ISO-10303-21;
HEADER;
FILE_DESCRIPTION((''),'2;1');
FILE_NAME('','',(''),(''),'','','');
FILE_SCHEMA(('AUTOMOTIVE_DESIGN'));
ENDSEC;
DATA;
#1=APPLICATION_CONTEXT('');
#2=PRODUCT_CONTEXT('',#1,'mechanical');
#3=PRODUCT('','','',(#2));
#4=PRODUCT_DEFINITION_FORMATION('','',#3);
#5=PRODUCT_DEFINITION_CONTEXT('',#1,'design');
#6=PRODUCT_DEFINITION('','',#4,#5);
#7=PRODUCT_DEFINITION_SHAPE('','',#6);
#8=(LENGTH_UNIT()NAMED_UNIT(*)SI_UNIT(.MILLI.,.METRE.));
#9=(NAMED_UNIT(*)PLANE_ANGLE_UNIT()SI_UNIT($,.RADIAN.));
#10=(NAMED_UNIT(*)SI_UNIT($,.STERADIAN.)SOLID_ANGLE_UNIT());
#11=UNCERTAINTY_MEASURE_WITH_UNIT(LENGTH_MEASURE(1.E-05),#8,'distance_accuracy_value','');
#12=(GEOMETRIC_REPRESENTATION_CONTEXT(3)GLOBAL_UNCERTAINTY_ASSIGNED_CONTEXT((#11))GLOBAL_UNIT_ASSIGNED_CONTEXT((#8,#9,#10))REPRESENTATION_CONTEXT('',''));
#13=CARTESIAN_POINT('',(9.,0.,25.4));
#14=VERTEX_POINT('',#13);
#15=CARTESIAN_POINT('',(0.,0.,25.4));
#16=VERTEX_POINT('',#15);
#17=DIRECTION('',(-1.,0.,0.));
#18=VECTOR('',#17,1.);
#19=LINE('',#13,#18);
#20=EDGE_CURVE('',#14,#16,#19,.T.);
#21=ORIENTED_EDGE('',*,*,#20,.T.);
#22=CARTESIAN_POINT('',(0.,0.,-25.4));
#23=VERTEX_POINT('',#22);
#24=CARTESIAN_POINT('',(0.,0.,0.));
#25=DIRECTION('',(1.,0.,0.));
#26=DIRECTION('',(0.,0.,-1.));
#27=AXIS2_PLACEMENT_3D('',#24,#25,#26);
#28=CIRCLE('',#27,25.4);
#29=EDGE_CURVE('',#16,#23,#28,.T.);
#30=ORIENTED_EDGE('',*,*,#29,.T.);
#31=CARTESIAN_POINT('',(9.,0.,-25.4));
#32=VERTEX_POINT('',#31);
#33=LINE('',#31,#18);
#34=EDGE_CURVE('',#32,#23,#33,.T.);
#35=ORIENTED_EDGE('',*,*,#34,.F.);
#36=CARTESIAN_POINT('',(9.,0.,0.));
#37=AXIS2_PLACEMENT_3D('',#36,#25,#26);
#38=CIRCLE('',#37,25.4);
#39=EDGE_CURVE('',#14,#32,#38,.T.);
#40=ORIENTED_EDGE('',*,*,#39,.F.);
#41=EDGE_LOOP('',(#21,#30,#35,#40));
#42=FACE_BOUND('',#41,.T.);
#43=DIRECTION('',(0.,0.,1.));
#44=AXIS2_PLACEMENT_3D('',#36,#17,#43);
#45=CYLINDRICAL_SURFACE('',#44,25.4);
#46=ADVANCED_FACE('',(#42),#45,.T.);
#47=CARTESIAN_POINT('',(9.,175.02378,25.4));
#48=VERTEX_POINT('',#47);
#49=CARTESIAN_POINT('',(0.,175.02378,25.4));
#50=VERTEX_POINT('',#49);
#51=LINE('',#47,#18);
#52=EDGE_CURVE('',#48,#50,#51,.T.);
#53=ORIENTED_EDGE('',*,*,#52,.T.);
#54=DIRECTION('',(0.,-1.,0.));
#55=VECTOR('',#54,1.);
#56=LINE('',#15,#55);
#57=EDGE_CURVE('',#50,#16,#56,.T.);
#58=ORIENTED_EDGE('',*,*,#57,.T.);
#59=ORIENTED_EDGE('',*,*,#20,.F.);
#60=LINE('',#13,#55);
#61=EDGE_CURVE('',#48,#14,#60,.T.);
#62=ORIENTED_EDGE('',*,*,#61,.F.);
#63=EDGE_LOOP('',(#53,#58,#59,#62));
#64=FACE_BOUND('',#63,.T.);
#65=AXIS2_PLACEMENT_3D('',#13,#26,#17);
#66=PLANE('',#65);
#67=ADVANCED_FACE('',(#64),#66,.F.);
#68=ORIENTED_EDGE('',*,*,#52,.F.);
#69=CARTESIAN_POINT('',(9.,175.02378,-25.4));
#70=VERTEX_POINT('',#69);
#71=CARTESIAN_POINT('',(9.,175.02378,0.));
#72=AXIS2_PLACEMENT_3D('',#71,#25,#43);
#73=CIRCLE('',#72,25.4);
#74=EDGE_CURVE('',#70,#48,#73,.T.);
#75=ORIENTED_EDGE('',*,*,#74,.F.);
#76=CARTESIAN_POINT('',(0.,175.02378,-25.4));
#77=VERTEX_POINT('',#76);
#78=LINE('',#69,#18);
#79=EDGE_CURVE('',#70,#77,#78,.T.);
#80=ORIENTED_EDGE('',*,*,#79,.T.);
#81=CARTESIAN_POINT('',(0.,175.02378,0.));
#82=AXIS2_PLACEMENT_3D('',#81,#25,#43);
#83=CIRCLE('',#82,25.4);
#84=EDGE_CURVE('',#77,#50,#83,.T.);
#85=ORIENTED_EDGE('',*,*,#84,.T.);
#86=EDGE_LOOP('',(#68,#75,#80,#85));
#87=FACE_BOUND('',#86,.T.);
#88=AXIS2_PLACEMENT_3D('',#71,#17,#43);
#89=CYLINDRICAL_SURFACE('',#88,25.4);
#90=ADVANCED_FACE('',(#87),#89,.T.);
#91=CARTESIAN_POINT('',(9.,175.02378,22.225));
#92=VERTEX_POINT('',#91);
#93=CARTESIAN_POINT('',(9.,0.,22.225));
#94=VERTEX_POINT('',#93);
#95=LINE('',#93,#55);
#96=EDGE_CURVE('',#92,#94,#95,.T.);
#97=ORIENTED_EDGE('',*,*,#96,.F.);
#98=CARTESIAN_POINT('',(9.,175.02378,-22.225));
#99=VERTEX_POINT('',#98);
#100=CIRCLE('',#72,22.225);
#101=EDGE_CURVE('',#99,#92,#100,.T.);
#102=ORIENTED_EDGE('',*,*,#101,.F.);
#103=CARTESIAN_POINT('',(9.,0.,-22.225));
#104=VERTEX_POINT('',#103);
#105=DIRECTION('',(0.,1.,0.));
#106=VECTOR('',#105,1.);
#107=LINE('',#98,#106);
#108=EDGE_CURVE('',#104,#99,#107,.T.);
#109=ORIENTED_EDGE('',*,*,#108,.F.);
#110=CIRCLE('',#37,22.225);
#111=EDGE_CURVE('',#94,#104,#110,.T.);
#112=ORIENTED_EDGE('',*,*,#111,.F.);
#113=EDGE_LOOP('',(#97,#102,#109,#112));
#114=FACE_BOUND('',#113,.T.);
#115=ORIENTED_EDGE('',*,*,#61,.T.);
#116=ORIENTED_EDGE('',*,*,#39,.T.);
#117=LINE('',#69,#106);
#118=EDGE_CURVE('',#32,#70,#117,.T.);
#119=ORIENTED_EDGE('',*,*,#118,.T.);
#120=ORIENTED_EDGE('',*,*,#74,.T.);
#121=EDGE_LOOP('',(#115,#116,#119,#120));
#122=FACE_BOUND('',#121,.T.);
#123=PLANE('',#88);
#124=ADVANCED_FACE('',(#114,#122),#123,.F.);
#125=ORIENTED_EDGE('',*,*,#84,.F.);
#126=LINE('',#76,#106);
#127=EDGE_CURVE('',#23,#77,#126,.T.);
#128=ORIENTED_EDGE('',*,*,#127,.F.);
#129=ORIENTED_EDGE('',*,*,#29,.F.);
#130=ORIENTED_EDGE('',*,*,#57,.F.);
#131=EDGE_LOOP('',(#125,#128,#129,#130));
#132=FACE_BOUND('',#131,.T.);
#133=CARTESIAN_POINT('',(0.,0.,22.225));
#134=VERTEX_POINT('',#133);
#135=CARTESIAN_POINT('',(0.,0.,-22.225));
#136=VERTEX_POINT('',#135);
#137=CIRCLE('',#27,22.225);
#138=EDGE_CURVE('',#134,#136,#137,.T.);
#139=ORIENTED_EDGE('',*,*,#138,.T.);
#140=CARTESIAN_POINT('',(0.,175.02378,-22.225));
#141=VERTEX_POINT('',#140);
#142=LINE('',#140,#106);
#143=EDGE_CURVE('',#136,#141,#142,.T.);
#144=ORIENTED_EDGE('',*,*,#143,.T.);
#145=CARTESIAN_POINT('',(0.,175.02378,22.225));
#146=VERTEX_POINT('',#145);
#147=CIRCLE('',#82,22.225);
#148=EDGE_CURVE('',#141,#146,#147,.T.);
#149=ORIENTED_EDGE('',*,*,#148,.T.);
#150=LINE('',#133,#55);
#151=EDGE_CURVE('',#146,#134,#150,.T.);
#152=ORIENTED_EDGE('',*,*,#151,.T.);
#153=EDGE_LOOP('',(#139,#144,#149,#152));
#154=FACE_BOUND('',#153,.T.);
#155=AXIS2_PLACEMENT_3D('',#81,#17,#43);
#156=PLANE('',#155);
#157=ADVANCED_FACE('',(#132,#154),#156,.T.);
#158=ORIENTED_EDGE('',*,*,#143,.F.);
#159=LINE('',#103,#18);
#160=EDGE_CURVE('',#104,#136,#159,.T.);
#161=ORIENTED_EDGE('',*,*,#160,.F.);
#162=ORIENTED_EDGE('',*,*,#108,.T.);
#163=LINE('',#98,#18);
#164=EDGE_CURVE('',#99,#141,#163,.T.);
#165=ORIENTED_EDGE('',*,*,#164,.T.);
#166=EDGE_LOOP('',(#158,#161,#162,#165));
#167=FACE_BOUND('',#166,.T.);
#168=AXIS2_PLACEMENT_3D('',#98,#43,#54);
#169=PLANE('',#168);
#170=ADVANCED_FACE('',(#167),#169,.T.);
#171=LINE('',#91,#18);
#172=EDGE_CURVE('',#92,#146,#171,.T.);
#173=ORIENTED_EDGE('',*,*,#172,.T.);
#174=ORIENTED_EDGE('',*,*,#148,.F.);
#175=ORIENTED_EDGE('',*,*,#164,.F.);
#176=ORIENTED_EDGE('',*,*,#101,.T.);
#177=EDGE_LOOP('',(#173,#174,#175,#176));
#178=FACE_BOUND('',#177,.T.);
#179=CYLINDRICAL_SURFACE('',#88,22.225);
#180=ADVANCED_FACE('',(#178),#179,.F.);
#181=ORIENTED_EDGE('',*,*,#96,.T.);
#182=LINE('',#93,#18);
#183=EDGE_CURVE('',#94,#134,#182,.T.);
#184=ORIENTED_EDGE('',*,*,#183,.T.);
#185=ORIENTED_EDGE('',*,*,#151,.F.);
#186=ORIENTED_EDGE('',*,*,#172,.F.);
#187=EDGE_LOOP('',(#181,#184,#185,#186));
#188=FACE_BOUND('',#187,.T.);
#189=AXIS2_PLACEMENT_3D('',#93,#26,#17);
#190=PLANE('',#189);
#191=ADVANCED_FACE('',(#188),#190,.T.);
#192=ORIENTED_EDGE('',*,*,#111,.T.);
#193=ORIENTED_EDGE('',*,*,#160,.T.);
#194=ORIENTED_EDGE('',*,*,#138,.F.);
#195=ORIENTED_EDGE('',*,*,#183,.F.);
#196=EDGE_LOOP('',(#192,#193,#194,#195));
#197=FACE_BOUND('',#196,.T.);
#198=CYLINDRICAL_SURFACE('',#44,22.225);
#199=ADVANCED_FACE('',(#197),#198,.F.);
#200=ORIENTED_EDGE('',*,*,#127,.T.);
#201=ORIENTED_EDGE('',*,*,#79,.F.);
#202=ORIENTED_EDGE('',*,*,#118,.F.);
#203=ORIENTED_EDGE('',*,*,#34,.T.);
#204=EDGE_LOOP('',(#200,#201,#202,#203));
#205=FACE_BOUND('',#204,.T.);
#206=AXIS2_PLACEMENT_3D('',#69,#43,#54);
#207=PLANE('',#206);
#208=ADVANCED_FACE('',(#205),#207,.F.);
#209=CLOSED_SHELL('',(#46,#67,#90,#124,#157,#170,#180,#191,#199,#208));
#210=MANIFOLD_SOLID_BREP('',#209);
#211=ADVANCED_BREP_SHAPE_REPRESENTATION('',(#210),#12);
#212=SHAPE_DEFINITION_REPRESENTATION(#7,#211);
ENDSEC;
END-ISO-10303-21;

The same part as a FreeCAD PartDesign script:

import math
import FreeCAD as App
import Part
import Sketcher
Q = App.Units.Quantity

doc = App.newDocument("Part")
body = doc.addObject("PartDesign::Body", "Body")

# Sketch on YZ plane
sketch1 = body.newObject("Sketcher::SketchObject", "Sketch")
sketch1.AttachmentSupport = (doc.getObject("YZ_Plane"), [""])
sketch1.MapMode = "FlatFace"
sketch1.addGeometry([
    Part.LineSegment(App.Vector(175, 25, 0), App.Vector(0, 25, 0)),  # 0
    Part.ArcOfCircle(Part.Circle(App.Vector(0, 0, 0), App.Vector(0, 0, 1), 25), math.radians(90), math.radians(270)),  # 1
    Part.LineSegment(App.Vector(0, -25, 0), App.Vector(175, -25, 0)),  # 2
    Part.ArcOfCircle(Part.Circle(App.Vector(175, 0, 0), App.Vector(0, 0, 1), 25), math.radians(-90), math.radians(90)),  # 3
    Part.LineSegment(App.Vector(175, -22, 0), App.Vector(0, -22, 0)),  # 4
    Part.ArcOfCircle(Part.Circle(App.Vector(0, 0, 0), App.Vector(0, 0, 1), 22), math.radians(90), math.radians(270)),  # 5
    Part.LineSegment(App.Vector(0, 22, 0), App.Vector(175, 22, 0)),  # 6
    Part.ArcOfCircle(Part.Circle(App.Vector(175, 0, 0), App.Vector(0, 0, 1), 22), math.radians(-90), math.radians(90)),  # 7
], False)
sketch1.addConstraint([
    Sketcher.Constraint("Tangent", 0, 2, 1, 1),
    Sketcher.Constraint("Tangent", 1, 2, 2, 1),
    Sketcher.Constraint("Tangent", 2, 2, 3, 1),
    Sketcher.Constraint("Tangent", 3, 2, 0, 1),
    Sketcher.Constraint("Tangent", 4, 2, 5, 2),
    Sketcher.Constraint("Tangent", 5, 1, 6, 1),
    Sketcher.Constraint("Tangent", 6, 2, 7, 2),
    Sketcher.Constraint("Tangent", 7, 1, 4, 1),
    Sketcher.Constraint("Horizontal", 0),
    Sketcher.Constraint("Horizontal", 2),
    Sketcher.Constraint("Horizontal", 4),
    Sketcher.Constraint("Horizontal", 6),
    Sketcher.Constraint("Coincident", 1, 3, -1, 1),
    Sketcher.Constraint("Coincident", 5, 3, -1, 1),
    Sketcher.Constraint("Vertical", 7, 3, 2, 2),
    Sketcher.Constraint("Radius", 1, Q("1 in")),
    Sketcher.Constraint("Radius", 5, Q("0.875 in")),
    Sketcher.Constraint("DistanceX", 0, 2, 0, 1, Q("6.8907 in")),
])
pad1 = body.newObject("PartDesign::Pad", "Pad")
pad1.Profile = sketch1
pad1.Length = 9

doc.recompute()
